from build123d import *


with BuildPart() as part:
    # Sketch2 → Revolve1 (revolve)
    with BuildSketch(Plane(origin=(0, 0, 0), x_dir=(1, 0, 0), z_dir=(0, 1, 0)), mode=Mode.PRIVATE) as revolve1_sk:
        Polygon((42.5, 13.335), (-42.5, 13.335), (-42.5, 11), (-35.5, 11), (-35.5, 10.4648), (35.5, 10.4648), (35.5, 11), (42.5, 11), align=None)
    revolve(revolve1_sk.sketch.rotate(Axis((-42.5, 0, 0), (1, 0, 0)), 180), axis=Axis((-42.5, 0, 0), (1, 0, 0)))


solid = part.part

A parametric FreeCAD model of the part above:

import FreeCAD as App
import Part
import Sketcher

doc = App.newDocument("Part")
body = doc.addObject("PartDesign::Body", "Body")

sketch1 = body.newObject("Sketcher::SketchObject", "Sketch")
sketch1.AttachmentSupport = (doc.getObject("XZ_Plane"), [""])
sketch1.MapMode = "FlatFace"
sketch1.addGeometry(Part.LineSegment(App.Vector(42.5, -13.3, 0), App.Vector(-42.5, -13.3, 0)), False)
sketch1.addGeometry(Part.LineSegment(App.Vector(-42.5, -13.3, 0), App.Vector(-42.5, -11, 0)), False)
sketch1.addGeometry(Part.LineSegment(App.Vector(-42.5, -11, 0), App.Vector(-35.5, -11, 0)), False)
sketch1.addGeometry(Part.LineSegment(App.Vector(-35.5, -11, 0), App.Vector(-35.5, -10.5, 0)), False)
sketch1.addGeometry(Part.LineSegment(App.Vector(-35.5, -10.5, 0), App.Vector(35.5, -10.5, 0)), False)
sketch1.addGeometry(Part.LineSegment(App.Vector(35.5, -10.5, 0), App.Vector(35.5, -11, 0)), False)
sketch1.addGeometry(Part.LineSegment(App.Vector(35.5, -11, 0), App.Vector(42.5, -11, 0)), False)
sketch1.addGeometry(Part.LineSegment(App.Vector(42.5, -11, 0), App.Vector(42.5, -13.3, 0)), False)
sketch1.addConstraint(Sketcher.Constraint("Coincident", 0, 2, 1, 1))
sketch1.addConstraint(Sketcher.Constraint("Coincident", 1, 2, 2, 1))
sketch1.addConstraint(Sketcher.Constraint("Coincident", 2, 2, 3, 1))
sketch1.addConstraint(Sketcher.Constraint("Coincident", 3, 2, 4, 1))
sketch1.addConstraint(Sketcher.Constraint("Coincident", 4, 2, 5, 1))
sketch1.addConstraint(Sketcher.Constraint("Coincident", 5, 2, 6, 1))
sketch1.addConstraint(Sketcher.Constraint("Coincident", 6, 2, 7, 1))
sketch1.addConstraint(Sketcher.Constraint("Coincident", 7, 2, 0, 1))
sketch1.addConstraint(Sketcher.Constraint("Horizontal", 0))
sketch1.addConstraint(Sketcher.Constraint("Vertical", 1))
sketch1.addConstraint(Sketcher.Constraint("Horizontal", 2))
sketch1.addConstraint(Sketcher.Constraint("Vertical", 3))
sketch1.addConstraint(Sketcher.Constraint("Horizontal", 4))
sketch1.addConstraint(Sketcher.Constraint("Vertical", 5))
sketch1.addConstraint(Sketcher.Constraint("Horizontal", 6))
sketch1.addConstraint(Sketcher.Constraint("Vertical", 7))
sketch1.addConstraint(Sketcher.Constraint("Symmetric", 2, 2, 5, 2, -2))
sketch1.addConstraint(Sketcher.Constraint("Equal", 2, 6))
sketch1.addConstraint(Sketcher.Constraint("DistanceX", 0, 2, 0, 1, 85.0))
sketch1.addConstraint(Sketcher.Constraint("DistanceX", 2, 1, 2, 2, 7.0))
sketch1.addConstraint(Sketcher.Constraint("DistanceY", 1, 2, -1, 1, 11.0))
sketch1.addConstraint(Sketcher.Constraint("DistanceY", 1, 1, 1, 2, 2.335))
sketch1.addConstraint(Sketcher.Constraint("DistanceY", 3, 1, 3, 2, 0.5352))
revolution = body.newObject("PartDesign::Revolution", "Revolution")
revolution.Profile = sketch1
revolution.ReferenceAxis = (sketch1, ["H_Axis"])
revolution.Angle = 360

doc.recompute()
